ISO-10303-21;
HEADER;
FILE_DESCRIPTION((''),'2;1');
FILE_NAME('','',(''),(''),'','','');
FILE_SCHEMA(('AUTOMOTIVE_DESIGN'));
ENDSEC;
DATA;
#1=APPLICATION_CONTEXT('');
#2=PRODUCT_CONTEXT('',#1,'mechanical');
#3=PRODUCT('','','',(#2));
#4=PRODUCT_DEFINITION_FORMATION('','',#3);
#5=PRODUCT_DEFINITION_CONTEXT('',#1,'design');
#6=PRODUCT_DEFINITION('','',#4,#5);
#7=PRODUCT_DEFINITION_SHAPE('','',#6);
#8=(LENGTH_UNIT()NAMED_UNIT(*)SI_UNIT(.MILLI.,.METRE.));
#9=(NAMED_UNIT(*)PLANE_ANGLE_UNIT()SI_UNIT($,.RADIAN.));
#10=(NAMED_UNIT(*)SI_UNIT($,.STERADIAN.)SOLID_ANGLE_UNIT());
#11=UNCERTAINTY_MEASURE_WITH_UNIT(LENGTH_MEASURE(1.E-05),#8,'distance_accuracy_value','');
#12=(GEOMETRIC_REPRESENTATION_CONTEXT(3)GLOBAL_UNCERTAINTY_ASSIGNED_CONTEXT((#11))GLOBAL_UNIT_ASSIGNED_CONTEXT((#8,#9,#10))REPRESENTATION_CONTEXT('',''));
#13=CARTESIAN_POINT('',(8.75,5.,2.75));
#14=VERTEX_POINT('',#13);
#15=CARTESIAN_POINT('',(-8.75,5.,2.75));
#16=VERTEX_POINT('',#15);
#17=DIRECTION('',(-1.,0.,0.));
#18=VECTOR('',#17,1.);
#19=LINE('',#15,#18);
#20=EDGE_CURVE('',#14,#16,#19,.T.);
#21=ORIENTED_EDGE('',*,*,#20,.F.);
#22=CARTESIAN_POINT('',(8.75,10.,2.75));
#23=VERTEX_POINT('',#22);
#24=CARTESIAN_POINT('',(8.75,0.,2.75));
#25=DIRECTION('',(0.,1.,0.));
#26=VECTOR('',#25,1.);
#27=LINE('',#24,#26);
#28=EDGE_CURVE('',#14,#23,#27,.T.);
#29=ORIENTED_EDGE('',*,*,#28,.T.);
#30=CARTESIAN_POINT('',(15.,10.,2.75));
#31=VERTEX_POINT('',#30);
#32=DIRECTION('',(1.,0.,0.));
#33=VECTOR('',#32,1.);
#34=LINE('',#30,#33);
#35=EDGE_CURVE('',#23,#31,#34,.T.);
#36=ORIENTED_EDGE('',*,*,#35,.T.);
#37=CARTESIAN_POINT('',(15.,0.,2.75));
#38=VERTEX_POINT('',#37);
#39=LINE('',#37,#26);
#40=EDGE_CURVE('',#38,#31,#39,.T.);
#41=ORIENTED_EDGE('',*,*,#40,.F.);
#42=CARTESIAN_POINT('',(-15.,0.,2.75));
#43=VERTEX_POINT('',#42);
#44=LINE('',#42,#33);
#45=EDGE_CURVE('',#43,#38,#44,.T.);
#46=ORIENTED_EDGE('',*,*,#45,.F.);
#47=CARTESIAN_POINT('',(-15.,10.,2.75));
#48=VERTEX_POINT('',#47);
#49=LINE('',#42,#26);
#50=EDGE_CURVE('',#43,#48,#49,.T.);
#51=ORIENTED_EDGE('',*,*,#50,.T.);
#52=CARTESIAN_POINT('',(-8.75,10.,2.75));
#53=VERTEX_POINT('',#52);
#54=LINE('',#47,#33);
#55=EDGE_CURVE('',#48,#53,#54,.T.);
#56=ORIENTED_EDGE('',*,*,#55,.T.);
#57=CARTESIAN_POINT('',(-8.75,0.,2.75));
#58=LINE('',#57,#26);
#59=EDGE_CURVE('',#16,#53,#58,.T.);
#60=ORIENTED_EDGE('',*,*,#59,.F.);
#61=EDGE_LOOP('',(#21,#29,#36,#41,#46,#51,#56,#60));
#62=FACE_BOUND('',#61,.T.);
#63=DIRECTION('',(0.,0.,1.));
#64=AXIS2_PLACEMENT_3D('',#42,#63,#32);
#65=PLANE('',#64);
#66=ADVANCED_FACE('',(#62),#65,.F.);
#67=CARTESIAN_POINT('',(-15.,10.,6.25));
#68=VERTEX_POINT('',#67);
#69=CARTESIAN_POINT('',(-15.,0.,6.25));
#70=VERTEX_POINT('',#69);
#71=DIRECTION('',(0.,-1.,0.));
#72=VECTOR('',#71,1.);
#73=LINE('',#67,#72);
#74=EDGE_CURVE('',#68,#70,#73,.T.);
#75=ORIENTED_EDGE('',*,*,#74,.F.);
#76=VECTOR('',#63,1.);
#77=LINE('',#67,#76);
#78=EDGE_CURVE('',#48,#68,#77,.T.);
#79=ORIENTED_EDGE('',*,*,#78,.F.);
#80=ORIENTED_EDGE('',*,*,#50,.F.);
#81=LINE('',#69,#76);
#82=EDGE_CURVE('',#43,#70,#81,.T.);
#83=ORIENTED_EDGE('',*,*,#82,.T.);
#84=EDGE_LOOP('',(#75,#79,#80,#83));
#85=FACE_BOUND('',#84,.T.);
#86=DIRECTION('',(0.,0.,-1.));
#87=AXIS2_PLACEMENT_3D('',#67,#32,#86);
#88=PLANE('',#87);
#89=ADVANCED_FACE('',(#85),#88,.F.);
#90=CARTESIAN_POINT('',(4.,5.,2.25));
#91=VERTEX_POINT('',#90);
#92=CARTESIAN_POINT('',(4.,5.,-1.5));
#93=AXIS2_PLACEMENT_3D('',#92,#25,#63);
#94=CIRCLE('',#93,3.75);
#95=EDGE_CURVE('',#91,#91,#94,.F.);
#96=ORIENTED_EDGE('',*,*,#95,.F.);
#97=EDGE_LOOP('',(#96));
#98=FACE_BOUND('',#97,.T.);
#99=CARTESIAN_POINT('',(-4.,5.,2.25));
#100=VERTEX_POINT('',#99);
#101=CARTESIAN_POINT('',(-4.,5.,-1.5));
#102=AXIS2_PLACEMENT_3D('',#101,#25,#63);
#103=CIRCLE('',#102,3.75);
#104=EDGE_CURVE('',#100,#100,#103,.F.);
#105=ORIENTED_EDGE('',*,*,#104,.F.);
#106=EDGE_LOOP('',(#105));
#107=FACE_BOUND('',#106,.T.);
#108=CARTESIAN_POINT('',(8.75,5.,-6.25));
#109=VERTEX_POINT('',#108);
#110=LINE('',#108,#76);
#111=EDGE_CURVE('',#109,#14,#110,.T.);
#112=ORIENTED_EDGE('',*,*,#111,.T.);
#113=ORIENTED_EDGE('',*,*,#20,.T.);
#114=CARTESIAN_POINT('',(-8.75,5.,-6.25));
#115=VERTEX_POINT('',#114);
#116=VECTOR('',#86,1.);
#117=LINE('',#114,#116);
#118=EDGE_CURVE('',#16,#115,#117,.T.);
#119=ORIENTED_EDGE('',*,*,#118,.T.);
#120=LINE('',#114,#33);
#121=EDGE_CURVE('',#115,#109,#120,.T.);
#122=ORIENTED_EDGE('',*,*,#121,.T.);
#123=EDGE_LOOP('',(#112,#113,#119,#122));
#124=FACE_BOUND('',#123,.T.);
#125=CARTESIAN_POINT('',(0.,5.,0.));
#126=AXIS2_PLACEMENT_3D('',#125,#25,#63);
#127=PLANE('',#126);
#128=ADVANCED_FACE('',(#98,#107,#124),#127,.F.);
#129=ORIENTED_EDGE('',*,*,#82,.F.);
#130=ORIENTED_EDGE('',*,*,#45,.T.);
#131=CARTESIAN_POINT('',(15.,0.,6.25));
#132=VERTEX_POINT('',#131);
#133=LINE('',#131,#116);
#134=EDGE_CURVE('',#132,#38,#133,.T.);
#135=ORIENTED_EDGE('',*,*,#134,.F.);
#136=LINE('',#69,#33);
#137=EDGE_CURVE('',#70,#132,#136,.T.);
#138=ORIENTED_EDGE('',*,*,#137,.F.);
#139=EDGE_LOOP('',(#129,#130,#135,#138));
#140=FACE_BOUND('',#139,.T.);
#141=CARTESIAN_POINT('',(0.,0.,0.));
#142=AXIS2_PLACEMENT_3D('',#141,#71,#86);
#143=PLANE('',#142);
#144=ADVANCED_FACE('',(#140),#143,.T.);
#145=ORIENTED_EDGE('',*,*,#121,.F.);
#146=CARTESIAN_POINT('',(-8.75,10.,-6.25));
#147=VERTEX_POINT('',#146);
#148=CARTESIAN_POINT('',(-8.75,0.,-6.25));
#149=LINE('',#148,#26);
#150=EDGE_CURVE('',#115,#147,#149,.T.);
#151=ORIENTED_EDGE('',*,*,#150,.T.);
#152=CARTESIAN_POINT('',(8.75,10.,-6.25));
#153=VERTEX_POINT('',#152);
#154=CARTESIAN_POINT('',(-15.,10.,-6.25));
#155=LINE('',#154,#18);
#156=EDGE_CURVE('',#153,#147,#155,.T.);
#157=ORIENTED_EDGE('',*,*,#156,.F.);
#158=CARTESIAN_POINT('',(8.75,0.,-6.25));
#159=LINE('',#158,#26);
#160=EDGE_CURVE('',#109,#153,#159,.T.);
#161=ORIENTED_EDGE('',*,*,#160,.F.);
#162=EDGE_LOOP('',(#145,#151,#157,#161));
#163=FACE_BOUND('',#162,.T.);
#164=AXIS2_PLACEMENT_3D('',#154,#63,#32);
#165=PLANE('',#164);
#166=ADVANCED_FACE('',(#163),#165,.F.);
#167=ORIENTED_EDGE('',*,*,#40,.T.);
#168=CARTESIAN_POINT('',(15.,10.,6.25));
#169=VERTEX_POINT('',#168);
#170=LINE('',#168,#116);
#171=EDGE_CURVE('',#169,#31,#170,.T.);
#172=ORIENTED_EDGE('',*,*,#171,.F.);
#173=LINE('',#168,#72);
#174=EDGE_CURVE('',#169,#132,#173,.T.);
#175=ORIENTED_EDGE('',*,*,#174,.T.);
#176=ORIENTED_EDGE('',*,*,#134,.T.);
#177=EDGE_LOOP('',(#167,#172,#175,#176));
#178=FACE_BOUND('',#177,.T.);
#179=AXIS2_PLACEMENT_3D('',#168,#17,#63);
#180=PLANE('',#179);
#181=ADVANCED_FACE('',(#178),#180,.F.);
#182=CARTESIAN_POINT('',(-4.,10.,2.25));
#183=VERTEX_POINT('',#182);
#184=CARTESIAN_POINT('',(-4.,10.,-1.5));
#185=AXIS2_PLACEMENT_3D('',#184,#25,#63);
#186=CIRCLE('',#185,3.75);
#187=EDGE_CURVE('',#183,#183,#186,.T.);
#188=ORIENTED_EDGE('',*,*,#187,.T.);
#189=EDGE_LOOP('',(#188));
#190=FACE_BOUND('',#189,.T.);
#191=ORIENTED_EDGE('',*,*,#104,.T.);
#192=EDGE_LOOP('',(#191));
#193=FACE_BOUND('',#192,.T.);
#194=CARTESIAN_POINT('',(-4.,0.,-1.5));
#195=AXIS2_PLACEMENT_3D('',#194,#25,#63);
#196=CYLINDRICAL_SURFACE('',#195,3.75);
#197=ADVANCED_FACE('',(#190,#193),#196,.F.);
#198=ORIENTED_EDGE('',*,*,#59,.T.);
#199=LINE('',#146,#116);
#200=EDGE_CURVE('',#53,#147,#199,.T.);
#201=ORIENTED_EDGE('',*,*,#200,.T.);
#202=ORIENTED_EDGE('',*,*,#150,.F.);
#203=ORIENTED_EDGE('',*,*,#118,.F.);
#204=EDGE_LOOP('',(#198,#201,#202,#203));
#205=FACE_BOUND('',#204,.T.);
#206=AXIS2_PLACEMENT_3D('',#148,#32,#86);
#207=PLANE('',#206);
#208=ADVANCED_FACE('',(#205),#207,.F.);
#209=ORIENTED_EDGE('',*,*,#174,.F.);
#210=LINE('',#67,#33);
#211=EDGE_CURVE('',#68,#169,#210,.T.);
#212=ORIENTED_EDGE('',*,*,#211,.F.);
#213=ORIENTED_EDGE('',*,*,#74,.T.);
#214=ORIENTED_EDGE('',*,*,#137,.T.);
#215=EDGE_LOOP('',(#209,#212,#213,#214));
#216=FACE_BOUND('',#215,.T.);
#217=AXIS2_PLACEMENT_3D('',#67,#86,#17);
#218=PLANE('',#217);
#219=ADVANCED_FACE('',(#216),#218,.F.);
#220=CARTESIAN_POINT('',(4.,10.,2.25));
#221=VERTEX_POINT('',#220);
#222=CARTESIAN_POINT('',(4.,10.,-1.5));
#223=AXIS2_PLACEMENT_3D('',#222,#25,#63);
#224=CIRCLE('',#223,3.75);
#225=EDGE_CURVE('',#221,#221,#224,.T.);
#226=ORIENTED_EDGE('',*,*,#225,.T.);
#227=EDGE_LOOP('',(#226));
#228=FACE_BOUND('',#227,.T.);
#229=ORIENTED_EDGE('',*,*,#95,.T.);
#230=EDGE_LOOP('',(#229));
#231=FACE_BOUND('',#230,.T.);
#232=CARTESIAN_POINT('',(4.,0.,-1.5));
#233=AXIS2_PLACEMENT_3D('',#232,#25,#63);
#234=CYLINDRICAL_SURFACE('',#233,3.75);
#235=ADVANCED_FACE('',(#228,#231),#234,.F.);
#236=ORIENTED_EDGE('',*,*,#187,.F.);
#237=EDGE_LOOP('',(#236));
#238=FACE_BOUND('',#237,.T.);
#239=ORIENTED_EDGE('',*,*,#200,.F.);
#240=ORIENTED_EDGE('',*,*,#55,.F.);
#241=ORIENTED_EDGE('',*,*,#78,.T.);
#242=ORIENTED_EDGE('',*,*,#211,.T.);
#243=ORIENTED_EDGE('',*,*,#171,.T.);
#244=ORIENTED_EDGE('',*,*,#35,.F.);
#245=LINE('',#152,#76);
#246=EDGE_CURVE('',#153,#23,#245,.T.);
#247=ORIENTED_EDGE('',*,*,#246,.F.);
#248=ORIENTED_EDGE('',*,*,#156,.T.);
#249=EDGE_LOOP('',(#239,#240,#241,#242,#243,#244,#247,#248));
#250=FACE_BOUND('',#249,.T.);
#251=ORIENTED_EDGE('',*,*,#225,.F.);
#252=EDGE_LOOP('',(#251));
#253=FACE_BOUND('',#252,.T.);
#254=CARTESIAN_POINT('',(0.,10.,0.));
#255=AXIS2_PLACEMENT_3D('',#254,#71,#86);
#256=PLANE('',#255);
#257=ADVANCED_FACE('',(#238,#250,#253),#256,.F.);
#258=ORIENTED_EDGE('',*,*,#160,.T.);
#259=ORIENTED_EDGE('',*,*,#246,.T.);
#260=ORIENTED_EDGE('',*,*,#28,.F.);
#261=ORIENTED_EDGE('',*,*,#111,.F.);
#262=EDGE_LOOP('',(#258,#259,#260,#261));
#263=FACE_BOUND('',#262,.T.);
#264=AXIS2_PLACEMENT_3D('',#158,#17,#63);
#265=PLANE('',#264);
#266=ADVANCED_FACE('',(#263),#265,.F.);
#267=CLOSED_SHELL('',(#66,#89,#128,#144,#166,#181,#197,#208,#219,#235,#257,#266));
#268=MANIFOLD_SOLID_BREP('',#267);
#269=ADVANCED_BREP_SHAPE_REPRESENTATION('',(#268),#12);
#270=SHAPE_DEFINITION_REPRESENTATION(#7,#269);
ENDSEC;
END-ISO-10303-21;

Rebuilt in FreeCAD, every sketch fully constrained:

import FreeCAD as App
import Part
import Sketcher

V = App.Vector
Q = App.Units.Quantity

doc = App.newDocument("Part")
body = doc.addObject("PartDesign::Body", "Body")

# Sketch on XZ plane
sketch1 = doc.addObject("Sketcher::SketchObject", "Sketch")
body.addObject(sketch1)
sketch1.AttachmentSupport = (doc.XZ_Plane, [""])
sketch1.MapMode = "FlatFace"
sketch1.addGeometry(Part.LineSegment(V(-15, -6, 0), V(-15, 6, 0)), False)
sketch1.addGeometry(Part.LineSegment(V(-15, 6, 0), V(15, 6, 0)), False)
sketch1.addGeometry(Part.LineSegment(V(15, 6, 0), V(15, -6, 0)), False)
sketch1.addGeometry(Part.LineSegment(V(15, -6, 0), V(-15, -6, 0)), False)
sketch1.addConstraint(Sketcher.Constraint("Coincident", 0, 2, 1, 1))
sketch1.addConstraint(Sketcher.Constraint("Coincident", 1, 2, 2, 1))
sketch1.addConstraint(Sketcher.Constraint("Coincident", 2, 2, 3, 1))
sketch1.addConstraint(Sketcher.Constraint("Coincident", 3, 2, 0, 1))
sketch1.addConstraint(Sketcher.Constraint("Vertical", 0))
sketch1.addConstraint(Sketcher.Constraint("Horizontal", 1))
sketch1.addConstraint(Sketcher.Constraint("Vertical", 2))
sketch1.addConstraint(Sketcher.Constraint("Horizontal", 3))
sketch1.addConstraint(Sketcher.Constraint("Symmetric", 0, 2, 2, 2, -1, 1))
sketch1.addConstraint(Sketcher.Constraint("DistanceX", 1, 1, 1, 2, Q("30 mm")))
sketch1.addConstraint(Sketcher.Constraint("DistanceY", 0, 1, 0, 2, Q("12.5 mm")))
pad1 = doc.addObject("PartDesign::Pad", "Pad")
body.addObject(pad1)
pad1.Profile = sketch1
pad1.Length = 10
pad1.Reversed = True

# Sketch on XZ plane
sketch2 = doc.addObject("Sketcher::SketchObject", "Sketch001")
body.addObject(sketch2)
sketch2.AttachmentSupport = (doc.XZ_Plane, [""])
sketch2.MapMode = "FlatFace"
sketch2.AttachmentOffset = App.Placement(V(0, 0, -10), App.Rotation())
sketch2.addGeometry(Part.Circle(V(-4, -1.5, 0), V(0, 0, 1), 3.8), False)
sketch2.addGeometry(Part.Circle(V(4, -1.5, 0), V(0, 0, 1), 3.8), False)
sketch2.addGeometry(Part.LineSegment(V(-15, -6.2, 0), V(-15, 2.8, 0)), False)
sketch2.addGeometry(Part.LineSegment(V(-15, 2.8, 0), V(-8.8, 2.8, 0)), False)
sketch2.addGeometry(Part.LineSegment(V(-8.8, 2.8, 0), V(-8.8, -6.2, 0)), False)
sketch2.addGeometry(Part.LineSegment(V(-8.8, -6.2, 0), V(-15, -6.2, 0)), False)
sketch2.addGeometry(Part.LineSegment(V(8.8, -6.2, 0), V(8.8, 2.8, 0)), False)
sketch2.addGeometry(Part.LineSegment(V(8.8, 2.8, 0), V(15, 2.8, 0)), False)
sketch2.addGeometry(Part.LineSegment(V(15, 2.8, 0), V(15, -6.2, 0)), False)
sketch2.addGeometry(Part.LineSegment(V(15, -6.2, 0), V(8.8, -6.2, 0)), False)
sketch2.addConstraint(Sketcher.Constraint("Coincident", 2, 2, 3, 1))
sketch2.addConstraint(Sketcher.Constraint("Coincident", 3, 2, 4, 1))
sketch2.addConstraint(Sketcher.Constraint("Coincident", 4, 2, 5, 1))
sketch2.addConstraint(Sketcher.Constraint("Coincident", 5, 2, 2, 1))
sketch2.addConstraint(Sketcher.Constraint("Coincident", 6, 2, 7, 1))
sketch2.addConstraint(Sketcher.Constraint("Coincident", 7, 2, 8, 1))
sketch2.addConstraint(Sketcher.Constraint("Coincident", 8, 2, 9, 1))
sketch2.addConstraint(Sketcher.Constraint("Coincident", 9, 2, 6, 1))
sketch2.addConstraint(Sketcher.Constraint("Vertical", 2))
sketch2.addConstraint(Sketcher.Constraint("Horizontal", 3))
sketch2.addConstraint(Sketcher.Constraint("Vertical", 4))
sketch2.addConstraint(Sketcher.Constraint("Horizontal", 5))
sketch2.addConstraint(Sketcher.Constraint("Vertical", 6))
sketch2.addConstraint(Sketcher.Constraint("Horizontal", 7))
sketch2.addConstraint(Sketcher.Constraint("Vertical", 8))
sketch2.addConstraint(Sketcher.Constraint("Horizontal", 9))
sketch2.addConstraint(Sketcher.Constraint("Equal", 0, 1))
sketch2.addConstraint(Sketcher.Constraint("Symmetric", 0, 3, 1, 3, -2))
sketch2.addConstraint(Sketcher.Constraint("Symmetric", 3, 2, 6, 2, -2))
sketch2.addConstraint(Sketcher.Constraint("Symmetric", 5, 2, 8, 2, -2))
sketch2.addConstraint(Sketcher.Constraint("Diameter", 0, Q("7.5 mm")))
sketch2.addConstraint(Sketcher.Constraint("DistanceY", 2, 1, 2, 2, Q("9 mm")))
sketch2.addConstraint(Sketcher.Constraint("DistanceX", 0, 3, -1, 1, Q("4 mm")))
sketch2.addConstraint(Sketcher.Constraint("DistanceX", 2, 2, -1, 1, Q("15 mm")))
sketch2.addConstraint(Sketcher.Constraint("DistanceX", 3, 1, 3, 2, Q("6.25 mm")))
sketch2.addConstraint(Sketcher.Constraint("DistanceY", 0, 3, -1, 1, Q("1.5 mm")))
sketch2.addConstraint(Sketcher.Constraint("DistanceY", -1, 1, 2, 2, Q("2.75 mm")))
pocket1 = doc.addObject("PartDesign::Pocket", "Pocket")
body.addObject(pocket1)
pocket1.Profile = sketch2
pocket1.Length = 10
pocket1.Reversed = True

# Sketch on XZ plane
sketch3 = doc.addObject("Sketcher::SketchObject", "Sketch002")
body.addObject(sketch3)
sketch3.AttachmentSupport = (doc.XZ_Plane, [""])
sketch3.MapMode = "FlatFace"
sketch3.addGeometry(Part.LineSegment(V(-9, 3, 0), V(-9, -6, 0)), False)
sketch3.addGeometry(Part.LineSegment(V(-9, -6, 0), V(9, -6, 0)), False)
sketch3.addGeometry(Part.LineSegment(V(9, -6, 0), V(9, 3, 0)), False)
sketch3.addGeometry(Part.LineSegment(V(9, 3, 0), V(-9, 3, 0)), False)
sketch3.addConstraint(Sketcher.Constraint("Coincident", 0, 2, 1, 1))
sketch3.addConstraint(Sketcher.Constraint("Coincident", 1, 2, 2, 1))
sketch3.addConstraint(Sketcher.Constraint("Coincident", 2, 2, 3, 1))
sketch3.addConstraint(Sketcher.Constraint("Coincident", 3, 2, 0, 1))
sketch3.addConstraint(Sketcher.Constraint("Vertical", 0))
sketch3.addConstraint(Sketcher.Constraint("Horizontal", 1))
sketch3.addConstraint(Sketcher.Constraint("Vertical", 2))
sketch3.addConstraint(Sketcher.Constraint("Horizontal", 3))
sketch3.addConstraint(Sketcher.Constraint("DistanceY", 0, 2, 0, 1, Q("9 mm")))
sketch3.addConstraint(Sketcher.Constraint("DistanceX", 1, 1, 1, 2, Q("17.5 mm")))
sketch3.addConstraint(Sketcher.Constraint("DistanceX", 0, 2, -1, 1, Q("8.75 mm")))
sketch3.addConstraint(Sketcher.Constraint("DistanceY", 0, 2, -1, 1, Q("6.25 mm")))
pocket2 = doc.addObject("PartDesign::Pocket", "Pocket001")
body.addObject(pocket2)
pocket2.Profile = sketch3
pocket2.Length = 5

doc.recompute()
